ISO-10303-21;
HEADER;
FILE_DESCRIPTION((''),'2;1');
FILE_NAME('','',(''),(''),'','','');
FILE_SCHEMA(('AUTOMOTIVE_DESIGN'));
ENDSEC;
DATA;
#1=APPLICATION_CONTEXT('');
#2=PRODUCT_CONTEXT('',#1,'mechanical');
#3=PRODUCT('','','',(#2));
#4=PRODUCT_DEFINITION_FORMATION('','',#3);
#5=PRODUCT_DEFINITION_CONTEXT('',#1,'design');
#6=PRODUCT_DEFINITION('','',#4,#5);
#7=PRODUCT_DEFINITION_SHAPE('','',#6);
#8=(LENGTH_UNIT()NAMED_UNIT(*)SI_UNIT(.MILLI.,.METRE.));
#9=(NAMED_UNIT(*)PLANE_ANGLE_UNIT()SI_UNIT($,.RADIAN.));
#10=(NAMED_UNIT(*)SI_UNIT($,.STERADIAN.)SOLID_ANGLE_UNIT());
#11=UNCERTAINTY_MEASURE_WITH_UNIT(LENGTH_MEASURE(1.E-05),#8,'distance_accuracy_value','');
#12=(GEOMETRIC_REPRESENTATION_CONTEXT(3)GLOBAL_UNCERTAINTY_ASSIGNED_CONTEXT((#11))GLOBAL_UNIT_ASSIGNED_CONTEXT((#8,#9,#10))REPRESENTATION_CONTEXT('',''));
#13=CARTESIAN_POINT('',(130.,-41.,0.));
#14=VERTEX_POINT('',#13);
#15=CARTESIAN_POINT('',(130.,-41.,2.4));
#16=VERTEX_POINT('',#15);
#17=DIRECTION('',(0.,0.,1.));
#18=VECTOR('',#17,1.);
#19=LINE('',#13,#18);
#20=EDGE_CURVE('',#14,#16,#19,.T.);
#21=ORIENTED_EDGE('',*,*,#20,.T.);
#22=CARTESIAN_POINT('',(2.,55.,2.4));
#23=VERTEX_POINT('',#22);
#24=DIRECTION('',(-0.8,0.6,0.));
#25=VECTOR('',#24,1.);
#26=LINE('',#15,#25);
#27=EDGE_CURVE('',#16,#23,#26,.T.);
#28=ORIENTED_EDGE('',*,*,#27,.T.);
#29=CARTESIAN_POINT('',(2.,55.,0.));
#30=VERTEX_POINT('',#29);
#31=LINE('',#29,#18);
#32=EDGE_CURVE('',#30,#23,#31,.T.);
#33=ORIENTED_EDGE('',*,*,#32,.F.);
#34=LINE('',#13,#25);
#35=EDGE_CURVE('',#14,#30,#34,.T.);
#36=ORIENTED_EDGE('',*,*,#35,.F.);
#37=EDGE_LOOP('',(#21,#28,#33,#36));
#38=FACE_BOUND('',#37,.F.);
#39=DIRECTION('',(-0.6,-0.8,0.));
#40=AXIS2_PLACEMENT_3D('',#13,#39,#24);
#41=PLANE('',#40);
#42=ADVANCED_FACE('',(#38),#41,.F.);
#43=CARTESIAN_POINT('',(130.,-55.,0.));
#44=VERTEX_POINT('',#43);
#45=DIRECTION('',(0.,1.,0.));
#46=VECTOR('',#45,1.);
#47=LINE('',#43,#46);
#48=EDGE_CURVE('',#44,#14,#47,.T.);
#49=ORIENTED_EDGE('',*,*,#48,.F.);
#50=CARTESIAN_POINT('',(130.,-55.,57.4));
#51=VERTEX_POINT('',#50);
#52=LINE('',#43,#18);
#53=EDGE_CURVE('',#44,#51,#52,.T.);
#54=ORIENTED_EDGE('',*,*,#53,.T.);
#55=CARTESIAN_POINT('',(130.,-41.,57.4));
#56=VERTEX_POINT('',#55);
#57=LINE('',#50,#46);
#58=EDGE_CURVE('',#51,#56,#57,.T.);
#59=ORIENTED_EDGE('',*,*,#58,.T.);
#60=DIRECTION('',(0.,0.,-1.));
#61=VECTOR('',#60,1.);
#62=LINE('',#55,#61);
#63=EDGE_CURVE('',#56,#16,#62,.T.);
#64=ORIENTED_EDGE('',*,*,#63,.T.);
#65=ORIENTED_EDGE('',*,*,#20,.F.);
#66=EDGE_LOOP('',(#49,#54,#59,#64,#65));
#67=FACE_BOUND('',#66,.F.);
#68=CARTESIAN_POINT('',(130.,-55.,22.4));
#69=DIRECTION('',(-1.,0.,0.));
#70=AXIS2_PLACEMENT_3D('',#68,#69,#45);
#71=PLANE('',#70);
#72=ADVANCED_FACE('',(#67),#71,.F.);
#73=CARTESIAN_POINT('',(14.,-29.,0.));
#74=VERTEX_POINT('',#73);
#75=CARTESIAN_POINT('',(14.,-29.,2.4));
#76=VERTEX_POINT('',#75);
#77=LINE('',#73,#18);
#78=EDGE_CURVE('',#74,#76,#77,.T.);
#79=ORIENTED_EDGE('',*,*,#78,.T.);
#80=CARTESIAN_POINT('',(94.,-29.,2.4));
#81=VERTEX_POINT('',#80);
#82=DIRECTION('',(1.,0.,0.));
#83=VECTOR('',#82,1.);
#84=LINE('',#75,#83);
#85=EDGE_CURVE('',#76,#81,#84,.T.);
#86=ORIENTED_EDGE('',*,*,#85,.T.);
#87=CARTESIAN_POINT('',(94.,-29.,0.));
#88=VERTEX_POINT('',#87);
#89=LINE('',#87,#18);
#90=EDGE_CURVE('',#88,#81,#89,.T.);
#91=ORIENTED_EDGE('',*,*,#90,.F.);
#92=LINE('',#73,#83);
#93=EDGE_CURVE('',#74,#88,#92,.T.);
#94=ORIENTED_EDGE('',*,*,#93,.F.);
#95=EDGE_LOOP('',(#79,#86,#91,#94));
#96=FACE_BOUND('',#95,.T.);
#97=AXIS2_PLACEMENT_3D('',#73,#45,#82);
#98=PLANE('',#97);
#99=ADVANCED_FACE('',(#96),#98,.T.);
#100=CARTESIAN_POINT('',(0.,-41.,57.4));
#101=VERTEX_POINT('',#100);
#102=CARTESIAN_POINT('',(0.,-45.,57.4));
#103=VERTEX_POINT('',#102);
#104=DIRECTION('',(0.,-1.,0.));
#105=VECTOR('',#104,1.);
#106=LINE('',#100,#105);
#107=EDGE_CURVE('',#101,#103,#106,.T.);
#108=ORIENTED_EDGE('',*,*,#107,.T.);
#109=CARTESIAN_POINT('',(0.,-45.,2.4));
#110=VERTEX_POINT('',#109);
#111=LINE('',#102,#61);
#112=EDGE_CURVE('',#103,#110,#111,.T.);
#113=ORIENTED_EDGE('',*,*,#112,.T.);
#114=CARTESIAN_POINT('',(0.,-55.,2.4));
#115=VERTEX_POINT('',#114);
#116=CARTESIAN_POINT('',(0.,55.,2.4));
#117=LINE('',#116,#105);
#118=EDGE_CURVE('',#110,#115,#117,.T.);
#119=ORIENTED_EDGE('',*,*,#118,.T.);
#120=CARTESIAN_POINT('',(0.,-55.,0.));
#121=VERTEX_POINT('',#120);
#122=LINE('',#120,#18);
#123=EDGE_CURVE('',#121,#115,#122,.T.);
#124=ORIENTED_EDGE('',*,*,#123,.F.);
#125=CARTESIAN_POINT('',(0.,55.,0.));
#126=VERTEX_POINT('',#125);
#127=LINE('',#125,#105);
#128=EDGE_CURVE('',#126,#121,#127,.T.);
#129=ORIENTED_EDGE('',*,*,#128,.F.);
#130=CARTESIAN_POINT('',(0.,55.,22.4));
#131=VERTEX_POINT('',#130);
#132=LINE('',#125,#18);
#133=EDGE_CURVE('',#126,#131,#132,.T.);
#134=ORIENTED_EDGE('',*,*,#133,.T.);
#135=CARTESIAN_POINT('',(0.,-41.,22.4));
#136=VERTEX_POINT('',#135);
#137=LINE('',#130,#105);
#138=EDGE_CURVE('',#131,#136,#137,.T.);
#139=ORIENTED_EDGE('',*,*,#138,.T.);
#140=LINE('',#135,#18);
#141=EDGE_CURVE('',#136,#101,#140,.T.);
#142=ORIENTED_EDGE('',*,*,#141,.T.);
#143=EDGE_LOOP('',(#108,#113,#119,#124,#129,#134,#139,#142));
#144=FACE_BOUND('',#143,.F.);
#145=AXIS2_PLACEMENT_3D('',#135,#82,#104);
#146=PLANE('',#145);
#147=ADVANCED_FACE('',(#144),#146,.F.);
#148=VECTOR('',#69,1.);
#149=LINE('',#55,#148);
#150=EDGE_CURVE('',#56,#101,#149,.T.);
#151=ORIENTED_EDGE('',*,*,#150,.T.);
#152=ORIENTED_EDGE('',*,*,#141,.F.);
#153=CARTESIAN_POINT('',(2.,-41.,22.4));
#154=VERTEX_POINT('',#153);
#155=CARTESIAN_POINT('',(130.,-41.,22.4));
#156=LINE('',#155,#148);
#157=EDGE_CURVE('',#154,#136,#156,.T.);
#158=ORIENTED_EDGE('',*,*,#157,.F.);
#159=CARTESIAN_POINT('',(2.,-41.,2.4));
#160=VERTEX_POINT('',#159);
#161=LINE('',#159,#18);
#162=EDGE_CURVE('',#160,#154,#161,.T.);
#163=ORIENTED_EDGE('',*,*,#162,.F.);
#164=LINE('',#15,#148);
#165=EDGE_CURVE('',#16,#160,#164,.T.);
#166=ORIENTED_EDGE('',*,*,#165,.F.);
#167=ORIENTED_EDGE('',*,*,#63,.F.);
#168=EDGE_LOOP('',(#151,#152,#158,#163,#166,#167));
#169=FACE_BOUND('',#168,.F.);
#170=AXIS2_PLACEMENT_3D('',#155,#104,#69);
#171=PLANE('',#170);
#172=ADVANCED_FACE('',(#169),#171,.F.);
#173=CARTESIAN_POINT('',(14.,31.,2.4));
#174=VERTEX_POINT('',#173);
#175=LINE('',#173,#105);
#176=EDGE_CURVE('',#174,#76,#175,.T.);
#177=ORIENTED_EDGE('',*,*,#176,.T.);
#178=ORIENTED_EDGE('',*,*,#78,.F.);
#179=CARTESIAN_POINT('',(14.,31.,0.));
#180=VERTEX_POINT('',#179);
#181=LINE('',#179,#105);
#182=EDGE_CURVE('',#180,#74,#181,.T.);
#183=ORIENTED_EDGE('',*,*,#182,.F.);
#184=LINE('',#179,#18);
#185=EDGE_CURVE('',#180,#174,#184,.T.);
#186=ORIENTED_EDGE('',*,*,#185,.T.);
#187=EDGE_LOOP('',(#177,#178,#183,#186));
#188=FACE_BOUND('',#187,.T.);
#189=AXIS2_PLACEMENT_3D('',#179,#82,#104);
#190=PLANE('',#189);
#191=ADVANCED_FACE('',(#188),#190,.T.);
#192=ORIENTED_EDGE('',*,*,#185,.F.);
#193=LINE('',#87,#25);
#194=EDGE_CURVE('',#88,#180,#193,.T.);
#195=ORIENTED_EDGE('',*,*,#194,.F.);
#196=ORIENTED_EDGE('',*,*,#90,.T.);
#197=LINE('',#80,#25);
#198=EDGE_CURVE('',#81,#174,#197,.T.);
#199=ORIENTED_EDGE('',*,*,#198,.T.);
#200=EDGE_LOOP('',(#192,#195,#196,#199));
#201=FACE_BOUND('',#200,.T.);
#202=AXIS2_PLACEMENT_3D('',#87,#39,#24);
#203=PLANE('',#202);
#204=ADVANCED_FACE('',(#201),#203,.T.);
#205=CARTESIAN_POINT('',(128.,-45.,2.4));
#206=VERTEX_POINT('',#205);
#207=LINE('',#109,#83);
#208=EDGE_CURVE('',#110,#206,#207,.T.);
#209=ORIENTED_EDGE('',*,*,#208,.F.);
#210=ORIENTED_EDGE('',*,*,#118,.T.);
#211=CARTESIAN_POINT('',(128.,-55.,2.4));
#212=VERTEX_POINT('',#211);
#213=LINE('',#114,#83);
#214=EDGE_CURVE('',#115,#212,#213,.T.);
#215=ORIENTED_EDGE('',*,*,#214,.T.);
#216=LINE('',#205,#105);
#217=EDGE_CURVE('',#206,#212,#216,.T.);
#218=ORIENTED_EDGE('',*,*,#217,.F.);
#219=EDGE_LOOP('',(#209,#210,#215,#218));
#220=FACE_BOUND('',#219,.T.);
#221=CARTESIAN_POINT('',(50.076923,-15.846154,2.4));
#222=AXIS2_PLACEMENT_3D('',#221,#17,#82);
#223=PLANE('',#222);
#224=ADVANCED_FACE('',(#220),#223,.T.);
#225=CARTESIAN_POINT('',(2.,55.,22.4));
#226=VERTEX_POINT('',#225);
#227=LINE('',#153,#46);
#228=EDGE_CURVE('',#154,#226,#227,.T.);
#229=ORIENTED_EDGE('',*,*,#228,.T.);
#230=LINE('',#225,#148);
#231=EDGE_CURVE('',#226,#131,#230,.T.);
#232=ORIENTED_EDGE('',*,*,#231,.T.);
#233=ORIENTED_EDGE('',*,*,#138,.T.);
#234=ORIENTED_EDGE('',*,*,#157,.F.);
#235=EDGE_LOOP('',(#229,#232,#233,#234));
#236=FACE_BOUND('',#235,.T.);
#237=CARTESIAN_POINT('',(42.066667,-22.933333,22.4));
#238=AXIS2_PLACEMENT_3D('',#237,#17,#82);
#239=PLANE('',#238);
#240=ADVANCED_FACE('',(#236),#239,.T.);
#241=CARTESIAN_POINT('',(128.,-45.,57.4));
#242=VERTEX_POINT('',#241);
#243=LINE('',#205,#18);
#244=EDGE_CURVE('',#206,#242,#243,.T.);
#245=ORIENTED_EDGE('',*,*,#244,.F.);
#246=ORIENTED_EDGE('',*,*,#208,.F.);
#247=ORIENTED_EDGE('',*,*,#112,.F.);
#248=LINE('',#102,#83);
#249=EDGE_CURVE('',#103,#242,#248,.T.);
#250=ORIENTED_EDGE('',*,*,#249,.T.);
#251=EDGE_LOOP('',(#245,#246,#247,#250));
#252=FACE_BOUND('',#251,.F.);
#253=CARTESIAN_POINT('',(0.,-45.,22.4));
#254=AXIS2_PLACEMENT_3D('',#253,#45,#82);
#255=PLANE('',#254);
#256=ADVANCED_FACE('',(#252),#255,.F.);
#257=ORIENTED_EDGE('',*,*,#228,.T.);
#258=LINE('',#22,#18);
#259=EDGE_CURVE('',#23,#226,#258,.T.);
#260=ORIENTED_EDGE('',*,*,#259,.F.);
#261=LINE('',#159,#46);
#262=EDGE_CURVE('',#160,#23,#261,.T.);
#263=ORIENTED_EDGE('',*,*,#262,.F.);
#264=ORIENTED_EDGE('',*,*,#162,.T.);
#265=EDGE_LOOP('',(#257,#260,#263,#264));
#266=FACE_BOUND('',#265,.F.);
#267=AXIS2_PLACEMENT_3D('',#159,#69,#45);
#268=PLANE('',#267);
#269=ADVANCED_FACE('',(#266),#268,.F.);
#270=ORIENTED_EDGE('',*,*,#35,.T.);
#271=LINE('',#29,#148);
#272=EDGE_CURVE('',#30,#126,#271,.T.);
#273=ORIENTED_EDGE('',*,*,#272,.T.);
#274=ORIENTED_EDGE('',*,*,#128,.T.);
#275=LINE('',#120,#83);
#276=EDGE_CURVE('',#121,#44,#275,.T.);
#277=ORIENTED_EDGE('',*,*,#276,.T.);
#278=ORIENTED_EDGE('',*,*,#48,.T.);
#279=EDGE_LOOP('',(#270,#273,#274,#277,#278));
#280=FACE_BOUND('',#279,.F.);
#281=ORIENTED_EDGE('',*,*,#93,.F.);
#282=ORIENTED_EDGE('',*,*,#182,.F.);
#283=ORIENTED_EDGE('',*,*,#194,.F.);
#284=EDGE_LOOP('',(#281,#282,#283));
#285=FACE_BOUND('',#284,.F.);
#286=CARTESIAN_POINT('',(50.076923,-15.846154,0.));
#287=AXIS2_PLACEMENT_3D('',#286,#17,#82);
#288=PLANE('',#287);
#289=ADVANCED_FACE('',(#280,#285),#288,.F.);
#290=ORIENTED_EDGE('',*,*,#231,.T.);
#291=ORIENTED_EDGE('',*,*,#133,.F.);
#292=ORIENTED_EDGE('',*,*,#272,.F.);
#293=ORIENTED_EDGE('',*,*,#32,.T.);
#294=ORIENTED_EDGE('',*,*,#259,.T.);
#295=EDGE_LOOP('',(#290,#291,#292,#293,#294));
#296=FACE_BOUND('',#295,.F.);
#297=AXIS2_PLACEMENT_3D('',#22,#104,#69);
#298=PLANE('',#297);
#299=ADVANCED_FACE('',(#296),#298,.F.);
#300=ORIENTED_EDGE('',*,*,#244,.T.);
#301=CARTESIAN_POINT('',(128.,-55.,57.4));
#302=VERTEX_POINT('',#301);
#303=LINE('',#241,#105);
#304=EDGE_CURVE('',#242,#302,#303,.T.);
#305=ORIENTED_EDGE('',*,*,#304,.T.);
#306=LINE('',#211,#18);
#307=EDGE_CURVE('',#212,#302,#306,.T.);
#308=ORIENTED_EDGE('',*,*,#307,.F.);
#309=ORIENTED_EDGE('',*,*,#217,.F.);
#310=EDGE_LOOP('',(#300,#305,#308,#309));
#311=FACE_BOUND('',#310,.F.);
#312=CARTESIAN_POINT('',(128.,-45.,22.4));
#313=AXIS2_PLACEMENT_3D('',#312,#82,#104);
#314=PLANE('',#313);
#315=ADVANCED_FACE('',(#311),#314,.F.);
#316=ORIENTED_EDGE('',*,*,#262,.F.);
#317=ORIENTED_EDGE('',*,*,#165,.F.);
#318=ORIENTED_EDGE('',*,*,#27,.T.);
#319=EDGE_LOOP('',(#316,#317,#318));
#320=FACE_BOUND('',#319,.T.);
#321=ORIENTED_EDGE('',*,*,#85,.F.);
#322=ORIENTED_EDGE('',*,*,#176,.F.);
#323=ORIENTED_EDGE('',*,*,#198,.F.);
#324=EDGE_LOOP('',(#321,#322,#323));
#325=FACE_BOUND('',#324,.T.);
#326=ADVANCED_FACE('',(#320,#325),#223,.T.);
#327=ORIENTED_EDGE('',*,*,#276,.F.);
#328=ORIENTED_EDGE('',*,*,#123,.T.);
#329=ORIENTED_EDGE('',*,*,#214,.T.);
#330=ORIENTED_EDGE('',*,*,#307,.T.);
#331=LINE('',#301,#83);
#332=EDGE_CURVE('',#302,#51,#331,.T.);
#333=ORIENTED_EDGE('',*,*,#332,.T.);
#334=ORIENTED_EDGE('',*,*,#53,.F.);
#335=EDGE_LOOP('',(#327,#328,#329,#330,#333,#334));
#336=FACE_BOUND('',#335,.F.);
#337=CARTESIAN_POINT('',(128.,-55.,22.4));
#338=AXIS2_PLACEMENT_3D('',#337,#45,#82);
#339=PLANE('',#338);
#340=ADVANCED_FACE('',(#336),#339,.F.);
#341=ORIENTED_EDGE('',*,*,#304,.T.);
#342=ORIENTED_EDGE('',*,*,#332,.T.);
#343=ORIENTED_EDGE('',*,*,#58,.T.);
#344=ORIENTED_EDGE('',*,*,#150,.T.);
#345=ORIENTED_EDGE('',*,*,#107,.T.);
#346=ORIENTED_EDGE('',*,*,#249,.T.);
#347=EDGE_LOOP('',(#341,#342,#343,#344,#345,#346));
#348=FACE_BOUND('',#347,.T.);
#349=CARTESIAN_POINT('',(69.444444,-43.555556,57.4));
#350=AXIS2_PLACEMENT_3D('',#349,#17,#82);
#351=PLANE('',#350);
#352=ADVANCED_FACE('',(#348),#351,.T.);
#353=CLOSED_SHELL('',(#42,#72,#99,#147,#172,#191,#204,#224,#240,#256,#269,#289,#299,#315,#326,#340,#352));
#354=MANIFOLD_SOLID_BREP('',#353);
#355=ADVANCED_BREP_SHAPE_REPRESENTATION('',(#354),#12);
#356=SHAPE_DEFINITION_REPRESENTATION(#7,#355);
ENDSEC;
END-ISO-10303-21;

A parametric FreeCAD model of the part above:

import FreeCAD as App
import Part
import Sketcher

V = App.Vector

doc = App.newDocument("Part")
params = doc.addObject("Spreadsheet::Sheet", "Params")
for row, (alias, value) in enumerate([
    ("sketch1_width", "130 mm"),
    ("sketch1_width2", "2 mm"),
    ("sketch1_width3", "80 mm"),
    ("sketch1_height", "110 mm"),
    ("sketch1_height2", "14 mm"),
    ("pad1_length", "2.4 mm"),
    ("sketch2_width", "2 mm"),
    ("sketch2_width2", "128 mm"),
    ("sketch2_height", "100 mm"),
    ("sketch2_height2", "10 mm"),
    ("sketch2_height3", "14 mm"),
    ("pad2_length", "20 mm"),
    ("sketch3_width", "128 mm"),
    ("sketch3_width2", "2 mm"),
    ("sketch3_height", "10 mm"),
    ("sketch3_height2", "14 mm"),
    ("pad3_length", "35 mm"),
], start=1):
    params.set(f"A{row}", alias)
    params.set(f"B{row}", "=" + value)
    params.setAlias(f"B{row}", alias)

body = doc.addObject("PartDesign::Body", "Body")

# Sketch on XY plane
sketch1 = body.newObject("Sketcher::SketchObject", "Sketch")
sketch1.AttachmentSupport = (doc.getObject("XY_Plane"), [""])
sketch1.MapMode = "FlatFace"
sketch1.addGeometry([
    Part.LineSegment(V(0, 55, 0), V(0, -55, 0)),  # 0
    Part.LineSegment(V(0, -55, 0), V(130, -55, 0)),  # 1
    Part.LineSegment(V(130, -55, 0), V(130, -41, 0)),  # 2
    Part.LineSegment(V(130, -41, 0), V(2, 55, 0)),  # 3
    Part.LineSegment(V(2, 55, 0), V(0, 55, 0)),  # 4
    Part.LineSegment(V(14, -29, 0), V(14, 31, 0)),  # 5
    Part.LineSegment(V(14, 31, 0), V(94, -29, 0)),  # 6
    Part.LineSegment(V(94, -29, 0), V(14, -29, 0)),  # 7
], False)
sketch1.addConstraint([
    Sketcher.Constraint("Coincident", 0, 2, 1, 1),
    Sketcher.Constraint("Coincident", 1, 2, 2, 1),
    Sketcher.Constraint("Coincident", 2, 2, 3, 1),
    Sketcher.Constraint("Coincident", 3, 2, 4, 1),
    Sketcher.Constraint("Coincident", 4, 2, 0, 1),
    Sketcher.Constraint("Coincident", 5, 2, 6, 1),
    Sketcher.Constraint("Coincident", 6, 2, 7, 1),
    Sketcher.Constraint("Coincident", 7, 2, 5, 1),
    Sketcher.Constraint("Vertical", 0),
    Sketcher.Constraint("Horizontal", 1),
    Sketcher.Constraint("Vertical", 2),
    Sketcher.Constraint("Horizontal", 4),
    Sketcher.Constraint("Vertical", 5),
    Sketcher.Constraint("Horizontal", 7),
    Sketcher.Constraint("Symmetric", 0, 2, 4, 2, -1, 1),
    Sketcher.Constraint("Parallel", 3, 6),
    Sketcher.Constraint("DistanceX", 1, 1, 1, 2, 130.0),
    Sketcher.Constraint("DistanceX", 4, 2, 4, 1, 2.0),
    Sketcher.Constraint("DistanceX", 7, 2, 7, 1, 80.0),
    Sketcher.Constraint("DistanceY", 0, 2, 0, 1, 110.0),
    Sketcher.Constraint("DistanceY", 2, 1, 2, 2, 14.0),
    Sketcher.Constraint("DistanceX", -1, 1, 5, 2, 14.0),
    Sketcher.Constraint("DistanceY", -1, 1, 5, 2, 31.0),
])
sketch1.setExpression("Constraints[16]", "Params.sketch1_width")
sketch1.setExpression("Constraints[17]", "Params.sketch1_width2")
sketch1.setExpression("Constraints[18]", "Params.sketch1_width3")
sketch1.setExpression("Constraints[19]", "Params.sketch1_height")
sketch1.setExpression("Constraints[20]", "Params.sketch1_height2")
pad1 = body.newObject("PartDesign::Pad", "Pad")
pad1.Profile = sketch1
pad1.setExpression("Length", "Params.pad1_length")

# Sketch on XY plane
sketch2 = body.newObject("Sketcher::SketchObject", "Sketch001")
sketch2.AttachmentSupport = (doc.getObject("XY_Plane"), [""])
sketch2.MapMode = "FlatFace"
sketch2.AttachmentOffset = App.Placement(V(0, 0, 2.4), App.Rotation())
sketch2.addGeometry([
    Part.LineSegment(V(2, 55, 0), V(0, 55, 0)),  # 0
    Part.LineSegment(V(0, 55, 0), V(0, -45, 0)),  # 1
    Part.LineSegment(V(0, -45, 0), V(128, -45, 0)),  # 2
    Part.LineSegment(V(128, -45, 0), V(128, -55, 0)),  # 3
    Part.LineSegment(V(128, -55, 0), V(130, -55, 0)),  # 4
    Part.LineSegment(V(130, -55, 0), V(130, -41, 0)),  # 5
    Part.LineSegment(V(130, -41, 0), V(2, -41, 0)),  # 6
    Part.LineSegment(V(2, -41, 0), V(2, 55, 0)),  # 7
], False)
sketch2.addConstraint([
    Sketcher.Constraint("Coincident", 0, 2, 1, 1),
    Sketcher.Constraint("Coincident", 1, 2, 2, 1),
    Sketcher.Constraint("Coincident", 2, 2, 3, 1),
    Sketcher.Constraint("Coincident", 3, 2, 4, 1),
    Sketcher.Constraint("Coincident", 4, 2, 5, 1),
    Sketcher.Constraint("Coincident", 5, 2, 6, 1),
    Sketcher.Constraint("Coincident", 6, 2, 7, 1),
    Sketcher.Constraint("Coincident", 7, 2, 0, 1),
    Sketcher.Constraint("Horizontal", 0),
    Sketcher.Constraint("Vertical", 1),
    Sketcher.Constraint("Horizontal", 2),
    Sketcher.Constraint("Vertical", 3),
    Sketcher.Constraint("Horizontal", 4),
    Sketcher.Constraint("Vertical", 5),
    Sketcher.Constraint("Horizontal", 6),
    Sketcher.Constraint("Vertical", 7),
    Sketcher.Constraint("PointOnObject", 0, 2, -2),
    Sketcher.Constraint("Equal", 0, 4),
    Sketcher.Constraint("DistanceX", 0, 2, 0, 1, 2.0),
    Sketcher.Constraint("DistanceX", 2, 1, 2, 2, 128.0),
    Sketcher.Constraint("DistanceY", 1, 2, 1, 1, 100.0),
    Sketcher.Constraint("DistanceY", 3, 2, 3, 1, 10.0),
    Sketcher.Constraint("DistanceY", 5, 1, 5, 2, 14.0),
    Sketcher.Constraint("DistanceY", -1, 1, 0, 2, 55.0),
])
sketch2.setExpression("Constraints[18]", "Params.sketch2_width")
sketch2.setExpression("Constraints[19]", "Params.sketch2_width2")
sketch2.setExpression("Constraints[20]", "Params.sketch2_height")
sketch2.setExpression("Constraints[21]", "Params.sketch2_height2")
sketch2.setExpression("Constraints[22]", "Params.sketch2_height3")
pad2 = body.newObject("PartDesign::Pad", "Pad001")
pad2.Profile = sketch2
pad2.setExpression("Length", "Params.pad2_length")

# Sketch on XY plane
sketch3 = body.newObject("Sketcher::SketchObject", "Sketch002")
sketch3.AttachmentSupport = (doc.getObject("XY_Plane"), [""])
sketch3.MapMode = "FlatFace"
sketch3.AttachmentOffset = App.Placement(V(0, 0, 22.4), App.Rotation())
sketch3.addGeometry([
    Part.LineSegment(V(0, -45, 0), V(128, -45, 0)),  # 0
    Part.LineSegment(V(128, -45, 0), V(128, -55, 0)),  # 1
    Part.LineSegment(V(128, -55, 0), V(130, -55, 0)),  # 2
    Part.LineSegment(V(130, -55, 0), V(130, -41, 0)),  # 3
    Part.LineSegment(V(130, -41, 0), V(0, -41, 0)),  # 4
    Part.LineSegment(V(0, -41, 0), V(0, -45, 0)),  # 5
], False)
sketch3.addConstraint([
    Sketcher.Constraint("Coincident", 0, 2, 1, 1),
    Sketcher.Constraint("Coincident", 1, 2, 2, 1),
    Sketcher.Constraint("Coincident", 2, 2, 3, 1),
    Sketcher.Constraint("Coincident", 3, 2, 4, 1),
    Sketcher.Constraint("Coincident", 4, 2, 5, 1),
    Sketcher.Constraint("Coincident", 5, 2, 0, 1),
    Sketcher.Constraint("Horizontal", 0),
    Sketcher.Constraint("Vertical", 1),
    Sketcher.Constraint("Horizontal", 2),
    Sketcher.Constraint("Vertical", 3),
    Sketcher.Constraint("Horizontal", 4),
    Sketcher.Constraint("Vertical", 5),
    Sketcher.Constraint("PointOnObject", 4, 2, -2),
    Sketcher.Constraint("DistanceX", 0, 1, 0, 2, 128.0),
    Sketcher.Constraint("DistanceX", 2, 1, 2, 2, 2.0),
    Sketcher.Constraint("DistanceY", 1, 2, 1, 1, 10.0),
    Sketcher.Constraint("DistanceY", 3, 1, 3, 2, 14.0),
    Sketcher.Constraint("DistanceY", 0, 2, -1, 1, 45.0),
])
sketch3.setExpression("Constraints[13]", "Params.sketch3_width")
sketch3.setExpression("Constraints[14]", "Params.sketch3_width2")
sketch3.setExpression("Constraints[15]", "Params.sketch3_height")
sketch3.setExpression("Constraints[16]", "Params.sketch3_height2")
pad3 = body.newObject("PartDesign::Pad", "Pad002")
pad3.Profile = sketch3
pad3.setExpression("Length", "Params.pad3_length")

doc.recompute()
